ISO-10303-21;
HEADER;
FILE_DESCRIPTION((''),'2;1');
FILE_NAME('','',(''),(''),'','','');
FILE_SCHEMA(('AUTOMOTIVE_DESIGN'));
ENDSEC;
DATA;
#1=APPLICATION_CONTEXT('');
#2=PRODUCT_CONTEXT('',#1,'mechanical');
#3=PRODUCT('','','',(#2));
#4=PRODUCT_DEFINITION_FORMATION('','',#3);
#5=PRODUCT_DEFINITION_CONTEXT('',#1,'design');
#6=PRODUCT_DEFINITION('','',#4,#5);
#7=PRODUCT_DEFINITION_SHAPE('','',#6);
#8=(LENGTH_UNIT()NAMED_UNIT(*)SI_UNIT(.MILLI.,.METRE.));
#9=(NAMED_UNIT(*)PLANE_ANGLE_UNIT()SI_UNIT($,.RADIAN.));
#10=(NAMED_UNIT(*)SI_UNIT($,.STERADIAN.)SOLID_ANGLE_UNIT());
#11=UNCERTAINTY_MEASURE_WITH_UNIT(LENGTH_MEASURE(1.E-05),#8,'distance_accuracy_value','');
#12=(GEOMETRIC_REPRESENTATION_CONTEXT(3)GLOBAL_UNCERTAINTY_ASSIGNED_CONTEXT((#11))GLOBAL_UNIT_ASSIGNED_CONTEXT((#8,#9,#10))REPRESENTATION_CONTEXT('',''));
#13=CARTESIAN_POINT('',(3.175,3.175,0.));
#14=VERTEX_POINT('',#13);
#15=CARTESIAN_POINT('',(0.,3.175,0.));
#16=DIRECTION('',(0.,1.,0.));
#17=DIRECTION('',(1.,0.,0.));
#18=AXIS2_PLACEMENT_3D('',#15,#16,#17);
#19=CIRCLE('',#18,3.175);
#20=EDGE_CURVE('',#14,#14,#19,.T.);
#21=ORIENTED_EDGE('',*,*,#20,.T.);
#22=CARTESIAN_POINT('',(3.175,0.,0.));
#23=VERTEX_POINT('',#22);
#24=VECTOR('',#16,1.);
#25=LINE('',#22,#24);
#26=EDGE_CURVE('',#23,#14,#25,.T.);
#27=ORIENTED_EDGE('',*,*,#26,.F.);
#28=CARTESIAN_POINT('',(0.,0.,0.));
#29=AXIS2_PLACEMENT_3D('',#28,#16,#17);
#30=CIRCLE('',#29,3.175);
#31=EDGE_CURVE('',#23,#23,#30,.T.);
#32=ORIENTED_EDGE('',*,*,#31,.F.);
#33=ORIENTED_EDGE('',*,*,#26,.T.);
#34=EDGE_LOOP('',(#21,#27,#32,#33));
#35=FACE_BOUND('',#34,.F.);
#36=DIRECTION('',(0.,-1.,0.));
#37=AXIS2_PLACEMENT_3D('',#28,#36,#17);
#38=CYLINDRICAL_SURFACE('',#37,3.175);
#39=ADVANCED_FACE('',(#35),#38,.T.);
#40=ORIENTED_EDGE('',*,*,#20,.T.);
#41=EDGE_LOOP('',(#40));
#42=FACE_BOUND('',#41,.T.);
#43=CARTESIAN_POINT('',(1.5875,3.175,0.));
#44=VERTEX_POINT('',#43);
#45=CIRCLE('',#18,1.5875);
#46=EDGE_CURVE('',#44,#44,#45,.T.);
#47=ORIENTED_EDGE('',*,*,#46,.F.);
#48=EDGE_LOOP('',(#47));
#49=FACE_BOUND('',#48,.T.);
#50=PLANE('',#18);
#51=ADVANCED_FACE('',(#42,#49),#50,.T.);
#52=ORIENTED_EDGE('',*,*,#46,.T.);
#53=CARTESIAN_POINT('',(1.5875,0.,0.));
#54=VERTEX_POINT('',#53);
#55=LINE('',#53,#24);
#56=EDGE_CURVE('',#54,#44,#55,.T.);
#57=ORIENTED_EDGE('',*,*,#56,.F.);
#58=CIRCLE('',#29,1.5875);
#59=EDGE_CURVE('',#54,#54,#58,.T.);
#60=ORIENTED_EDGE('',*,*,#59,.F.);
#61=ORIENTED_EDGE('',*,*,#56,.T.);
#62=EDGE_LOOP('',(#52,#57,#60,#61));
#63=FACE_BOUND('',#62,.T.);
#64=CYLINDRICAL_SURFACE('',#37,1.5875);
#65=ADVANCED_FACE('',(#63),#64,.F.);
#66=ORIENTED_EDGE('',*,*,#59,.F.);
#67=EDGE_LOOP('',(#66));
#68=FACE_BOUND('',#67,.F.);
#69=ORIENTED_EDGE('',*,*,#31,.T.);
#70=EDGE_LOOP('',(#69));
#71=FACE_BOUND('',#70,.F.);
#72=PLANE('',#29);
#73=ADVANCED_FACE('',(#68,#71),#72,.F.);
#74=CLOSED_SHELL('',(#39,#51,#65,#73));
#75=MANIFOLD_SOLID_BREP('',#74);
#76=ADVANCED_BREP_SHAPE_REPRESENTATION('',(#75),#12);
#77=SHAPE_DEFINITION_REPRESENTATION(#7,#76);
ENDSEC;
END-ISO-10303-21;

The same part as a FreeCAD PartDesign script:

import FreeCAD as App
import Part
import Sketcher
Q = App.Units.Quantity

doc = App.newDocument("Part")
params = doc.addObject("Spreadsheet::Sheet", "Params")
for row, (alias, value) in enumerate([
    ("sketch1_diameter", "0.25 in"),
    ("sketch1_diameter2", "0.125 in"),
    ("pad1_length", "0.125 in"),
], start=1):
    params.set(f"A{row}", alias)
    params.set(f"B{row}", "=" + value)
    params.setAlias(f"B{row}", alias)

body = doc.addObject("PartDesign::Body", "Body")

# Sketch on XZ plane
sketch1 = body.newObject("Sketcher::SketchObject", "Sketch")
sketch1.AttachmentSupport = (doc.getObject("XZ_Plane"), [""])
sketch1.MapMode = "FlatFace"
sketch1.addGeometry([
    Part.Circle(App.Vector(0, 0, 0), App.Vector(0, 0, 1), 3.2),
    Part.Circle(App.Vector(0, 0, 0), App.Vector(0, 0, 1), 1.6),
], False)
sketch1.addConstraint([
    Sketcher.Constraint("Coincident", 0, 3, -1, 1),
    Sketcher.Constraint("Coincident", 1, 3, -1, 1),
    Sketcher.Constraint("Diameter", 0, Q("0.25 in")),
    Sketcher.Constraint("Diameter", 1, Q("0.125 in")),
])
sketch1.setExpression("Constraints[2]", "Params.sketch1_diameter")
sketch1.setExpression("Constraints[3]", "Params.sketch1_diameter2")
pad1 = body.newObject("PartDesign::Pad", "Pad")
pad1.Profile = sketch1
pad1.setExpression("Length", "Params.pad1_length")
pad1.Reversed = True

doc.recompute()
